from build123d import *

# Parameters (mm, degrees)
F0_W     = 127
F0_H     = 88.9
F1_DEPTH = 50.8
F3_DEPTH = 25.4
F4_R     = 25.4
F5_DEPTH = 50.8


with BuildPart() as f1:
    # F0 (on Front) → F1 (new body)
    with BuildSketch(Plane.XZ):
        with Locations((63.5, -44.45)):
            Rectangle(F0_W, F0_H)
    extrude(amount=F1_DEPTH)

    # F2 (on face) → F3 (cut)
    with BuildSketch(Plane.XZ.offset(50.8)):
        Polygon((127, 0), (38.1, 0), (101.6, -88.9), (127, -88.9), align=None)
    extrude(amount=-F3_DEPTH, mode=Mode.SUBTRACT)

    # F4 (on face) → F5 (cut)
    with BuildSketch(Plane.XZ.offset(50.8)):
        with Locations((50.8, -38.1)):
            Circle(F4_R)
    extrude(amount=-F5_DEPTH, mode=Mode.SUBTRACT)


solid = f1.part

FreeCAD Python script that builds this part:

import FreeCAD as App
import Part
import Sketcher
from FreeCAD import Vector
Q = App.Units.Quantity

doc = App.newDocument("Part")
body = doc.addObject("PartDesign::Body", "Body")

sketch1 = body.newObject("Sketcher::SketchObject", "Sketch")
sketch1.AttachmentSupport = (doc.getObject("XZ_Plane"), [""])
sketch1.MapMode = "FlatFace"
sketch1.addGeometry([
    Part.LineSegment(Vector(0, 0, 0), Vector(0, -88.9, 0)),
    Part.LineSegment(Vector(0, -88.9, 0), Vector(127, -88.9, 0)),
    Part.LineSegment(Vector(127, -88.9, 0), Vector(127, 0, 0)),
    Part.LineSegment(Vector(127, 0, 0), Vector(0, 0, 0)),
], False)
sketch1.addConstraint([
    Sketcher.Constraint("Coincident", 0, 2, 1, 1),
    Sketcher.Constraint("Coincident", 1, 2, 2, 1),
    Sketcher.Constraint("Coincident", 2, 2, 3, 1),
    Sketcher.Constraint("Coincident", 3, 2, 0, 1),
    Sketcher.Constraint("Vertical", 0),
    Sketcher.Constraint("Horizontal", 1),
    Sketcher.Constraint("Vertical", 2),
    Sketcher.Constraint("Horizontal", 3),
    Sketcher.Constraint("Coincident", 3, 2, -1, 1),
    Sketcher.Constraint("DistanceX", 1, 1, 1, 2, Q("5 in")),
    Sketcher.Constraint("DistanceY", 0, 2, 0, 1, Q("3.5 in")),
])
pad1 = body.newObject("PartDesign::Pad", "Pad")
pad1.Profile = sketch1
pad1.Length = Q("2 in")

sketch2 = body.newObject("Sketcher::SketchObject", "Sketch001")
sketch2.AttachmentSupport = (doc.getObject("XZ_Plane"), [""])
sketch2.MapMode = "FlatFace"
sketch2.AttachmentOffset = App.Placement(Vector(0, 0, 2 * 25.4), App.Rotation())
sketch2.addGeometry([
    Part.LineSegment(Vector(127, 0, 0), Vector(38.1, 0, 0)),
    Part.LineSegment(Vector(38.1, 0, 0), Vector(101.6, -88.9, 0)),
    Part.LineSegment(Vector(101.6, -88.9, 0), Vector(127, -88.9, 0)),
    Part.LineSegment(Vector(127, -88.9, 0), Vector(127, 0, 0)),
], False)
sketch2.addConstraint([
    Sketcher.Constraint("Coincident", 0, 2, 1, 1),
    Sketcher.Constraint("Coincident", 1, 2, 2, 1),
    Sketcher.Constraint("Coincident", 2, 2, 3, 1),
    Sketcher.Constraint("Coincident", 3, 2, 0, 1),
    Sketcher.Constraint("Horizontal", 0),
    Sketcher.Constraint("Horizontal", 2),
    Sketcher.Constraint("Vertical", 3),
    Sketcher.Constraint("PointOnObject", 0, 2, -1),
    Sketcher.Constraint("Equal", 0, 3),
    Sketcher.Constraint("DistanceX", 2, 1, 2, 2, Q("1 in")),
    Sketcher.Constraint("DistanceX", 0, 2, 0, 1, Q("3.5 in")),
    Sketcher.Constraint("DistanceX", -1, 1, 1, 2, Q("4 in")),
])
pocket1 = body.newObject("PartDesign::Pocket", "Pocket")
pocket1.Profile = sketch2
pocket1.Length = Q("1 in")

sketch3 = body.newObject("Sketcher::SketchObject", "Sketch002")
sketch3.AttachmentSupport = (doc.getObject("XZ_Plane"), [""])
sketch3.MapMode = "FlatFace"
sketch3.AttachmentOffset = App.Placement(Vector(0, 0, 2 * 25.4), App.Rotation())
sketch3.addGeometry(Part.Circle(Vector(50.8, -38.1, 0), Vector(0, 0, 1), 25.4), False)
sketch3.addConstraint([
    Sketcher.Constraint("Diameter", 0, Q("2 in")),
    Sketcher.Constraint("DistanceX", -1, 1, 0, 3, Q("2 in")),
    Sketcher.Constraint("DistanceY", 0, 3, -1, 1, Q("1.5 in")),
])
pocket2 = body.newObject("PartDesign::Pocket", "Pocket001")
pocket2.Profile = sketch3
pocket2.Length = Q("2 in")

doc.recompute()
